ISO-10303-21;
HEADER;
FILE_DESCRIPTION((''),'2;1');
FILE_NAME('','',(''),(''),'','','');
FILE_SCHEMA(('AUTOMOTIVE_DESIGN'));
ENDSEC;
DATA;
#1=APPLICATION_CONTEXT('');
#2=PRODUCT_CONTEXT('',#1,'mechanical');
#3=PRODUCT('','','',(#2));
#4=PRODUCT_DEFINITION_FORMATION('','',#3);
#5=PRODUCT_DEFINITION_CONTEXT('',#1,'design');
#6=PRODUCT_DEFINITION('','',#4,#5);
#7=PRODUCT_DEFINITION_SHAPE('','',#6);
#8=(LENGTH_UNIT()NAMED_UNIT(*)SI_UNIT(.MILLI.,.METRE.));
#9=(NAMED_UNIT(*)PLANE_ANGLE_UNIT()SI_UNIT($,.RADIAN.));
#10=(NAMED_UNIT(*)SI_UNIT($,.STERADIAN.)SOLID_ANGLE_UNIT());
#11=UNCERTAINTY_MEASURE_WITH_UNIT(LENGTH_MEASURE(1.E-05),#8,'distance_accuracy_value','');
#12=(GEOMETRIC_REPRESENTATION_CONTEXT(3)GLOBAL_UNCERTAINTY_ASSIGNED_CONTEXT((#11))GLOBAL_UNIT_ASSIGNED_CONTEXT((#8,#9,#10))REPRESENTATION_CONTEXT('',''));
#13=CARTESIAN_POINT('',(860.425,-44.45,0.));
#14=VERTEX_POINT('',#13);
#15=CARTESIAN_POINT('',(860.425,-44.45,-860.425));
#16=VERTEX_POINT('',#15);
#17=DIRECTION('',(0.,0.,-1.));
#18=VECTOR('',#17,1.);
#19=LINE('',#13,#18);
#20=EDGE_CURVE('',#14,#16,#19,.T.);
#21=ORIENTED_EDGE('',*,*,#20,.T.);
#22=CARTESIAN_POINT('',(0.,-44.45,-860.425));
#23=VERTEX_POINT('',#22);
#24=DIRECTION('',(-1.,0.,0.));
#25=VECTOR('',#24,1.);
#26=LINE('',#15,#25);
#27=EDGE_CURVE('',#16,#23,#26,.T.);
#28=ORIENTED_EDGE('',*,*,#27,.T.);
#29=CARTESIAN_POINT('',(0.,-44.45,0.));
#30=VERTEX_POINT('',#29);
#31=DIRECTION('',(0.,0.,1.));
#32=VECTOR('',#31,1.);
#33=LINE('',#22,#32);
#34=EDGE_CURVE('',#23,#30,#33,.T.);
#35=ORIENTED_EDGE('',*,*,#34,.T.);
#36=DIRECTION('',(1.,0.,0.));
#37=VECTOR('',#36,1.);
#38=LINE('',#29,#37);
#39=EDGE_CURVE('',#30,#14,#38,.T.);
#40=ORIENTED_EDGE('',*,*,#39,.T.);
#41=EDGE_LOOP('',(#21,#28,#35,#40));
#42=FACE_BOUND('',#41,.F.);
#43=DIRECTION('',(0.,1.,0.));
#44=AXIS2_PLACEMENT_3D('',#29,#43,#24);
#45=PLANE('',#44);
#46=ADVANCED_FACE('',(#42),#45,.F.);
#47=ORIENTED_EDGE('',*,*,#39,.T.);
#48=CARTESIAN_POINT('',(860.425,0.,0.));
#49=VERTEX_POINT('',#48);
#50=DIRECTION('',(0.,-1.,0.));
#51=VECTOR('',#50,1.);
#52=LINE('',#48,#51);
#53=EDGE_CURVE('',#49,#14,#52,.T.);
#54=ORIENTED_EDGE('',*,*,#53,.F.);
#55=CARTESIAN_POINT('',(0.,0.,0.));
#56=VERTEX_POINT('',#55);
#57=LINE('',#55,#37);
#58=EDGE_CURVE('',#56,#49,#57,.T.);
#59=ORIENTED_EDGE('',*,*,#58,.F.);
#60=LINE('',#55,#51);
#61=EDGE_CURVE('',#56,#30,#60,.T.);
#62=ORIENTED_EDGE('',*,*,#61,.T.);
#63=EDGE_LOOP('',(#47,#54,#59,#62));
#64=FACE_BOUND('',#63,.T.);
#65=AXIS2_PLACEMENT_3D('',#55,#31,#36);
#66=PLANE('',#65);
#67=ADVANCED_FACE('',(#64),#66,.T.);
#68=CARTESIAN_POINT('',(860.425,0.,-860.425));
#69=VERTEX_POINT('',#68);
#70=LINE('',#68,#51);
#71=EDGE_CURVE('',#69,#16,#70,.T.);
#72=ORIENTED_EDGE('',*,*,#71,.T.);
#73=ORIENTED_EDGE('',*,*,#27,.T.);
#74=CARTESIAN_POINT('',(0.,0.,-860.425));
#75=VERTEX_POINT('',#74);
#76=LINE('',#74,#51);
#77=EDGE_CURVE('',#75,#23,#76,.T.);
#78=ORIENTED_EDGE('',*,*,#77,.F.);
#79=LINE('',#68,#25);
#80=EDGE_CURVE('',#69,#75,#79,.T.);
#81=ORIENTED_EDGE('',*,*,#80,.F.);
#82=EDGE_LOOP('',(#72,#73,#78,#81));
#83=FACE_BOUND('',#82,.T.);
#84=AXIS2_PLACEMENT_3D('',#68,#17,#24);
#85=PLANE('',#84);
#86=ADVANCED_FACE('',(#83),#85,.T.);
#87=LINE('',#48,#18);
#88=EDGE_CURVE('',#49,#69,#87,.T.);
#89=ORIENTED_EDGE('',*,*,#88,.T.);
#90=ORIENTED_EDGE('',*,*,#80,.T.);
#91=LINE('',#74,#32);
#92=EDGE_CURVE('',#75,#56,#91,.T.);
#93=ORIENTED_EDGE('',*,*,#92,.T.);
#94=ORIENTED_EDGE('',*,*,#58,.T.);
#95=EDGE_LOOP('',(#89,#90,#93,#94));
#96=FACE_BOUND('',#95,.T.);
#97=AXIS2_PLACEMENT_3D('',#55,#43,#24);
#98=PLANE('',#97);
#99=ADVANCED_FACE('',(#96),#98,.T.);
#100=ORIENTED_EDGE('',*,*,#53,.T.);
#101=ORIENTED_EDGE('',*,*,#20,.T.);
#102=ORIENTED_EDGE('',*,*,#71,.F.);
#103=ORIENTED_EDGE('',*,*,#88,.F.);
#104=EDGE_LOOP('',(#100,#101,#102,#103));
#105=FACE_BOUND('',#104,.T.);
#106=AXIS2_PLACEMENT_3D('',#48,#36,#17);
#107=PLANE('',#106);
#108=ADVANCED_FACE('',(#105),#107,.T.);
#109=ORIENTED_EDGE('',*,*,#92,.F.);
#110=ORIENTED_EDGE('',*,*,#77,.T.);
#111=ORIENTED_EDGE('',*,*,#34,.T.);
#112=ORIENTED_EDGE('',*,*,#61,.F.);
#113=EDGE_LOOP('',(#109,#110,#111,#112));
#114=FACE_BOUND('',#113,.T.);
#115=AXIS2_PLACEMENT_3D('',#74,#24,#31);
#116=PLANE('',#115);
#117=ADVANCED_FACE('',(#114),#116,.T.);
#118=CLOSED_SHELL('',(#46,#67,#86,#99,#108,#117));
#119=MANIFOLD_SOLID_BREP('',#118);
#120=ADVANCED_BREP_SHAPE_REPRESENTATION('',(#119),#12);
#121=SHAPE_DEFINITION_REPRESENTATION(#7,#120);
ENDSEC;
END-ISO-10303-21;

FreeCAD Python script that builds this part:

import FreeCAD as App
import Part
import Sketcher
from FreeCAD import Vector
Q = App.Units.Quantity


def add_polygon(sketch, points):
    """Adds a closed chain of lines whose ends are joined by coincident constraints."""
    first, n = sketch.GeometryCount, len(points)
    for a, b in zip(points, points[1:] + points[:1]):
        sketch.addGeometry(Part.LineSegment(App.Vector(*a, 0), App.Vector(*b, 0)), False)
    for i in range(n):
        sketch.addConstraint(Sketcher.Constraint("Coincident", first + i, 2, first + (i + 1) % n, 1))

doc = App.newDocument("Part")
body = doc.addObject("PartDesign::Body", "Body")

# Sketch on XZ plane
sketch1 = body.newObject("Sketcher::SketchObject", "Sketch")
sketch1.AttachmentSupport = (doc.getObject("XZ_Plane"), [""])
sketch1.MapMode = "FlatFace"
add_polygon(sketch1, [(0, -860), (0, 0), (860, 0), (860, -860)])  # lines 0-3
sketch1.addConstraint(Sketcher.Constraint("Vertical", 0))
sketch1.addConstraint(Sketcher.Constraint("Horizontal", 1))
sketch1.addConstraint(Sketcher.Constraint("Vertical", 2))
sketch1.addConstraint(Sketcher.Constraint("Horizontal", 3))
sketch1.addConstraint(Sketcher.Constraint("Coincident", 0, 2, -1, 1))
sketch1.addConstraint(Sketcher.Constraint("Equal", 3, 0))
sketch1.addConstraint(Sketcher.Constraint("DistanceX", 1, 1, 1, 2, Q("33.875 in")))
pad1 = body.newObject("PartDesign::Pad", "Pad")
pad1.Profile = sketch1
pad1.Length = Q("1.75 in")

doc.recompute()
